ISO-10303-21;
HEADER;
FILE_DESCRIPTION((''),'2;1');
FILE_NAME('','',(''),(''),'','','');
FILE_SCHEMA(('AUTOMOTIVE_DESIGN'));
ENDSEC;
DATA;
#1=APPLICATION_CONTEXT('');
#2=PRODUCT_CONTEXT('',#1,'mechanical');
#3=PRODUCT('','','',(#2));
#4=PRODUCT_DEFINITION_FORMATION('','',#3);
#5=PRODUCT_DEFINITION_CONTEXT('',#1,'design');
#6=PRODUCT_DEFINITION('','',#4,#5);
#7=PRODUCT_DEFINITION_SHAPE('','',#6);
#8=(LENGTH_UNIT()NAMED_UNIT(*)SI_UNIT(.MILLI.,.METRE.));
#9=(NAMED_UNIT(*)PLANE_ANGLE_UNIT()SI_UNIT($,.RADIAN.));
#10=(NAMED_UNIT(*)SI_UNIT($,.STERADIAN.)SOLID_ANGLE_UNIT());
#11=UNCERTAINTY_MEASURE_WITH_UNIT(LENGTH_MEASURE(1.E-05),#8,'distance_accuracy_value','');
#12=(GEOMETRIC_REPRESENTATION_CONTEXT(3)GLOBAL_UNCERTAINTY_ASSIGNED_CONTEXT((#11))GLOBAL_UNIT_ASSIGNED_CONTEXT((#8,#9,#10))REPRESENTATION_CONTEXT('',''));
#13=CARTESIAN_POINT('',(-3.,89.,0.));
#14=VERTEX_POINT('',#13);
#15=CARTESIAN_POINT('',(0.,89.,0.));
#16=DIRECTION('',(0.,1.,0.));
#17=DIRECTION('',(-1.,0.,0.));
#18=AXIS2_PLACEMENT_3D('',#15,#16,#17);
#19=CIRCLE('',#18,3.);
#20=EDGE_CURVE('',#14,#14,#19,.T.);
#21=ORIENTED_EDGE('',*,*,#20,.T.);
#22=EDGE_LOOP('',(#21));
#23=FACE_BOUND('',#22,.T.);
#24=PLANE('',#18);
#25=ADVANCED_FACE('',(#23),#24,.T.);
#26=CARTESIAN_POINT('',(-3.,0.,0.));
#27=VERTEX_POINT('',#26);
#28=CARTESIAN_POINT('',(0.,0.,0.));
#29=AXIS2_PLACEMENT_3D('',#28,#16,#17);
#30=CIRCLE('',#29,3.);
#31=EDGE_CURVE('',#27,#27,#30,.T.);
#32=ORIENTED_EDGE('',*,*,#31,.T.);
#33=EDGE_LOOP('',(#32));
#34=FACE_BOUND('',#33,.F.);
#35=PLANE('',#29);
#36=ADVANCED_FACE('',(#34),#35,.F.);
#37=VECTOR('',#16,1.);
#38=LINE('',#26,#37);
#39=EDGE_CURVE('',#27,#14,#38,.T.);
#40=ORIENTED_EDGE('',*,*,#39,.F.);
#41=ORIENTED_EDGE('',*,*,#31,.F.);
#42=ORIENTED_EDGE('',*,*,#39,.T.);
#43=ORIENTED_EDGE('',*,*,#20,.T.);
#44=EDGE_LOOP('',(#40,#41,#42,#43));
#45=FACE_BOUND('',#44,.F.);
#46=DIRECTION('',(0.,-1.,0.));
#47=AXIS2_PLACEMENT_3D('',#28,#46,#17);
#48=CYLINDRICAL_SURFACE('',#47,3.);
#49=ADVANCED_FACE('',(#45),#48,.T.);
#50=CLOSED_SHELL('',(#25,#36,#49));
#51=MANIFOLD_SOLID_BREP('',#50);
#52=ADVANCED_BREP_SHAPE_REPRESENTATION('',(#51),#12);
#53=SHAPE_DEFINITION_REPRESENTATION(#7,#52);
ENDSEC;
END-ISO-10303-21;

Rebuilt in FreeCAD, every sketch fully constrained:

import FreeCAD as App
import Part
import Sketcher
from FreeCAD import Vector

doc = App.newDocument("Part")
params = doc.addObject("Spreadsheet::Sheet", "Params")
for row, (alias, value) in enumerate([
    ("sketch1_diameter", "6 mm"),
    ("pad1_length", "89 mm"),
], start=1):
    params.set(f"A{row}", alias)
    params.set(f"B{row}", "=" + value)
    params.setAlias(f"B{row}", alias)

body = doc.addObject("PartDesign::Body", "Body")

# Sketch on XZ plane
sketch1 = body.newObject("Sketcher::SketchObject", "Sketch")
sketch1.AttachmentSupport = (doc.getObject("XZ_Plane"), [""])
sketch1.MapMode = "FlatFace"
sketch1.addGeometry(Part.Circle(Vector(0, 0, 0), Vector(0, 0, 1), 3), False)
sketch1.addConstraint([
    Sketcher.Constraint("Coincident", 0, 3, -1, 1),
    Sketcher.Constraint("Diameter", 0, 6.0),
])
sketch1.setExpression("Constraints[1]", "Params.sketch1_diameter")
pad1 = body.newObject("PartDesign::Pad", "Pad")
pad1.Profile = sketch1
pad1.setExpression("Length", "Params.pad1_length")
pad1.Reversed = True

doc.recompute()
